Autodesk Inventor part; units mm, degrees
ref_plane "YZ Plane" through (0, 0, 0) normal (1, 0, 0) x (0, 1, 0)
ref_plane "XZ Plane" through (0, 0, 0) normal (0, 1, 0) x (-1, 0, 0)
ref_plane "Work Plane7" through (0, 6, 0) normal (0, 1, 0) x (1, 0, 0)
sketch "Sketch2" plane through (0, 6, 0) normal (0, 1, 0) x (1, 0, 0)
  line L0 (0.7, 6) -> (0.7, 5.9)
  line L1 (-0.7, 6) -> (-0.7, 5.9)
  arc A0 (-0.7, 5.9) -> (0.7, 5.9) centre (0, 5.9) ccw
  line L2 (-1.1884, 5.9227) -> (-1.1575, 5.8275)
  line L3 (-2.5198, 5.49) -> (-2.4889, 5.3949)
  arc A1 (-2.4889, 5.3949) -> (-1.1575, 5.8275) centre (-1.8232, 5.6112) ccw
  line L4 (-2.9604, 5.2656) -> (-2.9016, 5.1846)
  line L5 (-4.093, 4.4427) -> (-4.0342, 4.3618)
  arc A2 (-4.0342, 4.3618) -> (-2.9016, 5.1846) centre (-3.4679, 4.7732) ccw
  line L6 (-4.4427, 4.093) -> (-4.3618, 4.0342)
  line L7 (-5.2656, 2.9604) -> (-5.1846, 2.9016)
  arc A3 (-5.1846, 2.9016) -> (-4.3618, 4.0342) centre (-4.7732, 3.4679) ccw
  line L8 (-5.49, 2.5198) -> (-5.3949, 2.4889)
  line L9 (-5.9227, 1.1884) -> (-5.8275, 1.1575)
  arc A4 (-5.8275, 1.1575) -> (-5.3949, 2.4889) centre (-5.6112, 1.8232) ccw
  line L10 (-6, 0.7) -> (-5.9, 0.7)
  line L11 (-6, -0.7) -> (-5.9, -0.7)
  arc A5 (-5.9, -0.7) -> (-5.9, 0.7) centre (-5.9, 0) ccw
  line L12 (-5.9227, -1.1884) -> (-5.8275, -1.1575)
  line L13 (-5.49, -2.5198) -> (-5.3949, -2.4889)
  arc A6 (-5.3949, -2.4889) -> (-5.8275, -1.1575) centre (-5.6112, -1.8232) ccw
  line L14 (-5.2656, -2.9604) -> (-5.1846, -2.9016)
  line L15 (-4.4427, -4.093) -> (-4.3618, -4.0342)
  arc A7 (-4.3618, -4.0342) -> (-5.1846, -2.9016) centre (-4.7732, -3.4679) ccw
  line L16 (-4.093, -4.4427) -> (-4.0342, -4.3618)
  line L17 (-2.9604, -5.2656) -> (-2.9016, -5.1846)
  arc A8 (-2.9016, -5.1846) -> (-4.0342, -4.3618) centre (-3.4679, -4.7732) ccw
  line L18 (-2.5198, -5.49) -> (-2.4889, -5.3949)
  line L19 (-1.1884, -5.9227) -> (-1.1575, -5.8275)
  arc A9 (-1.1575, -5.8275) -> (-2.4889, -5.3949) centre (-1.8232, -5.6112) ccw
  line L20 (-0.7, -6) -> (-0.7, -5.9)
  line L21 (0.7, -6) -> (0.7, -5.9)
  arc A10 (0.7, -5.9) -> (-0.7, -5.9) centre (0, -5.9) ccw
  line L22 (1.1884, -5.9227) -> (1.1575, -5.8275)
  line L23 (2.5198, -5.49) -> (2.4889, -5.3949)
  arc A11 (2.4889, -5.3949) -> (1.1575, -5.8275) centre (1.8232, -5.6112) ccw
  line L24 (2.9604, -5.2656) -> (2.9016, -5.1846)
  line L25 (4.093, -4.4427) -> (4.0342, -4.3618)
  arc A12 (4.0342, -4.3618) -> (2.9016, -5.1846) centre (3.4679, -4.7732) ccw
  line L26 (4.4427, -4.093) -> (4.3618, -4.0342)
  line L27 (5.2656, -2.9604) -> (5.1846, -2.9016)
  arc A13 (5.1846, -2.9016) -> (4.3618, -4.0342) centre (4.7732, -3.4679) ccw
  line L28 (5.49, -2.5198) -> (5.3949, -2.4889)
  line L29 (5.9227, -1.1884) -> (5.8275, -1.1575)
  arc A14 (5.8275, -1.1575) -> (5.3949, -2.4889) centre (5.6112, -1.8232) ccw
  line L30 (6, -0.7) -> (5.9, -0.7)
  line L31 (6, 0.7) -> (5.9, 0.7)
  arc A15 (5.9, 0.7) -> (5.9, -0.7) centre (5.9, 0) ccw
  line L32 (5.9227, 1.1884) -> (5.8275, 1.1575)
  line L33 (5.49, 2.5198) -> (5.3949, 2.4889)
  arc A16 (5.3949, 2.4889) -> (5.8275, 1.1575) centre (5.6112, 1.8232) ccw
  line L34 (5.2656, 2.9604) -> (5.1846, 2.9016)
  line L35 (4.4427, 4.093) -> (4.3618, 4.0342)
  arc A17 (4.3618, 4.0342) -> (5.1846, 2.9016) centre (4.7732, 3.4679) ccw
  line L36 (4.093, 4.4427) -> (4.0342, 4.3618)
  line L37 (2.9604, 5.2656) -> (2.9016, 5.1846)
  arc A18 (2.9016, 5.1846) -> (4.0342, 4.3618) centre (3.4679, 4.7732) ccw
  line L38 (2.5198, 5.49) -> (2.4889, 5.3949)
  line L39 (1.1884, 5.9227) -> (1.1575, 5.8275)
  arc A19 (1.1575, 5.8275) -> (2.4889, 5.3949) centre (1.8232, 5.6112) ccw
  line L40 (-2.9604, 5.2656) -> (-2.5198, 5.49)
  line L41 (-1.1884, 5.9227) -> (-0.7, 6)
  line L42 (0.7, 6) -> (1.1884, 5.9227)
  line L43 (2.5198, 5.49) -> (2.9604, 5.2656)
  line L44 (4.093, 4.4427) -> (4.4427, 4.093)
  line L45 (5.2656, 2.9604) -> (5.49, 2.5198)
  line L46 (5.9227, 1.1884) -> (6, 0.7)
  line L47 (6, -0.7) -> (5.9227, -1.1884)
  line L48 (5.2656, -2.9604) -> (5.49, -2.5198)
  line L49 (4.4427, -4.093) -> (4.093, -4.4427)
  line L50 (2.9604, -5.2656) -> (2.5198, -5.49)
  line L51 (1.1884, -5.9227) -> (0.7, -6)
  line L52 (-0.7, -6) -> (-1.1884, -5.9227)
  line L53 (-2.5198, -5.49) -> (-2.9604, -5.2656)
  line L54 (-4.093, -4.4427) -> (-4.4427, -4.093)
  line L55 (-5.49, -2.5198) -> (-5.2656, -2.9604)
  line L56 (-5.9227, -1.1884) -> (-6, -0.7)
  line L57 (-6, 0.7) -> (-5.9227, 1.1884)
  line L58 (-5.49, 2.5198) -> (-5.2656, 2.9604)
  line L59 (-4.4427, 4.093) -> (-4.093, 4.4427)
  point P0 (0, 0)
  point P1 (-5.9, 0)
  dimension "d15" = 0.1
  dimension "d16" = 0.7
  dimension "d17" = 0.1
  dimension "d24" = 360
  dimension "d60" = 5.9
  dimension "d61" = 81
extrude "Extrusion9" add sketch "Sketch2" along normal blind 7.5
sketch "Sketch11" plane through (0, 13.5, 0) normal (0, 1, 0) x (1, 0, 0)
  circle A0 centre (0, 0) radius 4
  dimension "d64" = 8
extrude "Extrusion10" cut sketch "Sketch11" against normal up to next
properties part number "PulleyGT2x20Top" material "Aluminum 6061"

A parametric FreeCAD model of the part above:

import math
import FreeCAD as App
import Part
import Sketcher

V = App.Vector
Q = App.Units.Quantity

doc = App.newDocument("Part")
body = doc.addObject("PartDesign::Body", "Body")

sketch1 = body.newObject("Sketcher::SketchObject", "Sketch")
sketch1.AttachmentSupport = (doc.getObject("XZ_Plane"), [""])
sketch1.MapMode = "FlatFace"
sketch1.AttachmentOffset = App.Placement(V(0, 0, -6), App.Rotation())
sketch1.addGeometry([
    Part.LineSegment(V(1.1884, -5.9227, 0), V(0.7, -6, 0)),
    Part.LineSegment(V(0.7, -6, 0), V(0.7, -5.9, 0)),
    Part.ArcOfCircle(Part.Circle(V(0, -5.9, 0), V(0, 0, 1), 0.7), math.radians(0), math.radians(180)),
    Part.LineSegment(V(-0.7, -5.9, 0), V(-0.7, -6, 0)),
    Part.LineSegment(V(-0.7, -6, 0), V(-1.1884, -5.9227, 0)),
    Part.LineSegment(V(-1.1884, -5.9227, 0), V(-1.1575, -5.8275, 0)),
    Part.ArcOfCircle(Part.Circle(V(-1.8232, -5.6112, 0), V(0, 0, 1), 0.699959), math.radians(-18.000075), math.radians(161.999925)),
    Part.LineSegment(V(-2.4889, -5.3949, 0), V(-2.5198, -5.49, 0)),
    Part.LineSegment(V(-2.5198, -5.49, 0), V(-2.9604, -5.2656, 0)),
    Part.LineSegment(V(-2.9604, -5.2656, 0), V(-2.9016, -5.1846, 0)),
    Part.ArcOfCircle(Part.Circle(V(-3.4679, -4.7732, 0), V(0, 0, 1), 0.699961), math.radians(-35.997283), math.radians(144.002717)),
    Part.LineSegment(V(-4.0342, -4.3618, 0), V(-4.093, -4.4427, 0)),
    Part.LineSegment(V(-4.093, -4.4427, 0), V(-4.4427, -4.093, 0)),
    Part.LineSegment(V(-4.4427, -4.093, 0), V(-4.3618, -4.0342, 0)),
    Part.ArcOfCircle(Part.Circle(V(-4.7732, -3.4679, 0), V(0, 0, 1), 0.699961), math.radians(-54.002717), math.radians(125.997283)),
    Part.LineSegment(V(-5.1846, -2.9016, 0), V(-5.2656, -2.9604, 0)),
    Part.LineSegment(V(-5.2656, -2.9604, 0), V(-5.49, -2.5198, 0)),
    Part.LineSegment(V(-5.49, -2.5198, 0), V(-5.3949, -2.4889, 0)),
    Part.ArcOfCircle(Part.Circle(V(-5.6112, -1.8232, 0), V(0, 0, 1), 0.699959), math.radians(-71.999925), math.radians(108.000075)),
    Part.LineSegment(V(-5.8275, -1.1575, 0), V(-5.9227, -1.1884, 0)),
    Part.LineSegment(V(-5.9227, -1.1884, 0), V(-6, -0.7, 0)),
    Part.LineSegment(V(-6, -0.7, 0), V(-5.9, -0.7, 0)),
    Part.ArcOfCircle(Part.Circle(V(-5.9, 0, 0), V(0, 0, 1), 0.7), math.radians(-90), math.radians(90)),
    Part.LineSegment(V(-5.9, 0.7, 0), V(-6, 0.7, 0)),
    Part.LineSegment(V(-6, 0.7, 0), V(-5.9227, 1.1884, 0)),
    Part.LineSegment(V(-5.9227, 1.1884, 0), V(-5.8275, 1.1575, 0)),
    Part.ArcOfCircle(Part.Circle(V(-5.6112, 1.8232, 0), V(0, 0, 1), 0.699959), math.radians(-108.000075), math.radians(71.999925)),
    Part.LineSegment(V(-5.3949, 2.4889, 0), V(-5.49, 2.5198, 0)),
    Part.LineSegment(V(-5.49, 2.5198, 0), V(-5.2656, 2.9604, 0)),
    Part.LineSegment(V(-5.2656, 2.9604, 0), V(-5.1846, 2.9016, 0)),
    Part.ArcOfCircle(Part.Circle(V(-4.7732, 3.4679, 0), V(0, 0, 1), 0.699961), math.radians(-125.997283), math.radians(54.002717)),
    Part.LineSegment(V(-4.3618, 4.0342, 0), V(-4.4427, 4.093, 0)),
    Part.LineSegment(V(-4.4427, 4.093, 0), V(-4.093, 4.4427, 0)),
    Part.LineSegment(V(-4.093, 4.4427, 0), V(-4.0342, 4.3618, 0)),
    Part.ArcOfCircle(Part.Circle(V(-3.4679, 4.7732, 0), V(0, 0, 1), 0.699961), math.radians(-144.002717), math.radians(35.997283)),
    Part.LineSegment(V(-2.9016, 5.1846, 0), V(-2.9604, 5.2656, 0)),
    Part.LineSegment(V(-2.9604, 5.2656, 0), V(-2.5198, 5.49, 0)),
    Part.LineSegment(V(-2.5198, 5.49, 0), V(-2.4889, 5.3949, 0)),
    Part.ArcOfCircle(Part.Circle(V(-1.8232, 5.6112, 0), V(0, 0, 1), 0.699959), math.radians(-161.999925), math.radians(18.000075)),
    Part.LineSegment(V(-1.1575, 5.8275, 0), V(-1.1884, 5.9227, 0)),
    Part.LineSegment(V(-1.1884, 5.9227, 0), V(-0.7, 6, 0)),
    Part.LineSegment(V(-0.7, 6, 0), V(-0.7, 5.9, 0)),
    Part.ArcOfCircle(Part.Circle(V(0, 5.9, 0), V(0, 0, 1), 0.7), math.radians(180), math.radians(360)),
    Part.LineSegment(V(0.7, 5.9, 0), V(0.7, 6, 0)),
    Part.LineSegment(V(0.7, 6, 0), V(1.1884, 5.9227, 0)),
    Part.LineSegment(V(1.1884, 5.9227, 0), V(1.1575, 5.8275, 0)),
    Part.ArcOfCircle(Part.Circle(V(1.8232, 5.6112, 0), V(0, 0, 1), 0.699959), math.radians(161.999925), math.radians(341.999925)),
    Part.LineSegment(V(2.4889, 5.3949, 0), V(2.5198, 5.49, 0)),
    Part.LineSegment(V(2.5198, 5.49, 0), V(2.9604, 5.2656, 0)),
    Part.LineSegment(V(2.9604, 5.2656, 0), V(2.9016, 5.1846, 0)),
    Part.ArcOfCircle(Part.Circle(V(3.4679, 4.7732, 0), V(0, 0, 1), 0.699961), math.radians(144.002717), math.radians(324.002717)),
    Part.LineSegment(V(4.0342, 4.3618, 0), V(4.093, 4.4427, 0)),
    Part.LineSegment(V(4.093, 4.4427, 0), V(4.4427, 4.093, 0)),
    Part.LineSegment(V(4.4427, 4.093, 0), V(4.3618, 4.0342, 0)),
    Part.ArcOfCircle(Part.Circle(V(4.7732, 3.4679, 0), V(0, 0, 1), 0.699961), math.radians(125.997283), math.radians(305.997283)),
    Part.LineSegment(V(5.1846, 2.9016, 0), V(5.2656, 2.9604, 0)),
    Part.LineSegment(V(5.2656, 2.9604, 0), V(5.49, 2.5198, 0)),
    Part.LineSegment(V(5.49, 2.5198, 0), V(5.3949, 2.4889, 0)),
    Part.ArcOfCircle(Part.Circle(V(5.6112, 1.8232, 0), V(0, 0, 1), 0.699959), math.radians(108.000075), math.radians(288.000075)),
    Part.LineSegment(V(5.8275, 1.1575, 0), V(5.9227, 1.1884, 0)),
    Part.LineSegment(V(5.9227, 1.1884, 0), V(6, 0.7, 0)),
    Part.LineSegment(V(6, 0.7, 0), V(5.9, 0.7, 0)),
    Part.ArcOfCircle(Part.Circle(V(5.9, 0, 0), V(0, 0, 1), 0.7), math.radians(90), math.radians(270)),
    Part.LineSegment(V(5.9, -0.7, 0), V(6, -0.7, 0)),
    Part.LineSegment(V(6, -0.7, 0), V(5.9227, -1.1884, 0)),
    Part.LineSegment(V(5.9227, -1.1884, 0), V(5.8275, -1.1575, 0)),
    Part.ArcOfCircle(Part.Circle(V(5.6112, -1.8232, 0), V(0, 0, 1), 0.699959), math.radians(71.999925), math.radians(251.999925)),
    Part.LineSegment(V(5.3949, -2.4889, 0), V(5.49, -2.5198, 0)),
    Part.LineSegment(V(5.49, -2.5198, 0), V(5.2656, -2.9604, 0)),
    Part.LineSegment(V(5.2656, -2.9604, 0), V(5.1846, -2.9016, 0)),
    Part.ArcOfCircle(Part.Circle(V(4.7732, -3.4679, 0), V(0, 0, 1), 0.699961), math.radians(54.002717), math.radians(234.002717)),
    Part.LineSegment(V(4.3618, -4.0342, 0), V(4.4427, -4.093, 0)),
    Part.LineSegment(V(4.4427, -4.093, 0), V(4.093, -4.4427, 0)),
    Part.LineSegment(V(4.093, -4.4427, 0), V(4.0342, -4.3618, 0)),
    Part.ArcOfCircle(Part.Circle(V(3.4679, -4.7732, 0), V(0, 0, 1), 0.699961), math.radians(35.997283), math.radians(215.997283)),
    Part.LineSegment(V(2.9016, -5.1846, 0), V(2.9604, -5.2656, 0)),
    Part.LineSegment(V(2.9604, -5.2656, 0), V(2.5198, -5.49, 0)),
    Part.LineSegment(V(2.5198, -5.49, 0), V(2.4889, -5.3949, 0)),
    Part.ArcOfCircle(Part.Circle(V(1.8232, -5.6112, 0), V(0, 0, 1), 0.699959), math.radians(18.000075), math.radians(198.000075)),
    Part.LineSegment(V(1.1575, -5.8275, 0), V(1.1884, -5.9227, 0)),
], False)
sketch1.addConstraint([
    Sketcher.Constraint("Coincident", 0, 2, 1, 1),
    Sketcher.Constraint("Tangent", 1, 2, 2, 1),
    Sketcher.Constraint("Tangent", 2, 2, 3, 1),
    Sketcher.Constraint("Coincident", 3, 2, 4, 1),
    Sketcher.Constraint("Coincident", 4, 2, 5, 1),
    Sketcher.Constraint("Tangent", 5, 2, 6, 1),
    Sketcher.Constraint("Tangent", 6, 2, 7, 1),
    Sketcher.Constraint("Coincident", 7, 2, 8, 1),
    Sketcher.Constraint("Coincident", 8, 2, 9, 1),
    Sketcher.Constraint("Tangent", 9, 2, 10, 1),
    Sketcher.Constraint("Tangent", 10, 2, 11, 1),
    Sketcher.Constraint("Coincident", 11, 2, 12, 1),
    Sketcher.Constraint("Coincident", 12, 2, 13, 1),
    Sketcher.Constraint("Tangent", 13, 2, 14, 1),
    Sketcher.Constraint("Tangent", 14, 2, 15, 1),
    Sketcher.Constraint("Coincident", 15, 2, 16, 1),
    Sketcher.Constraint("Coincident", 16, 2, 17, 1),
    Sketcher.Constraint("Tangent", 17, 2, 18, 1),
    Sketcher.Constraint("Tangent", 18, 2, 19, 1),
    Sketcher.Constraint("Coincident", 19, 2, 20, 1),
    Sketcher.Constraint("Coincident", 20, 2, 21, 1),
    Sketcher.Constraint("Tangent", 21, 2, 22, 1),
    Sketcher.Constraint("Tangent", 22, 2, 23, 1),
    Sketcher.Constraint("Coincident", 23, 2, 24, 1),
    Sketcher.Constraint("Coincident", 24, 2, 25, 1),
    Sketcher.Constraint("Tangent", 25, 2, 26, 1),
    Sketcher.Constraint("Tangent", 26, 2, 27, 1),
    Sketcher.Constraint("Coincident", 27, 2, 28, 1),
    Sketcher.Constraint("Coincident", 28, 2, 29, 1),
    Sketcher.Constraint("Tangent", 29, 2, 30, 1),
    Sketcher.Constraint("Tangent", 30, 2, 31, 1),
    Sketcher.Constraint("Coincident", 31, 2, 32, 1),
    Sketcher.Constraint("Coincident", 32, 2, 33, 1),
    Sketcher.Constraint("Tangent", 33, 2, 34, 1),
    Sketcher.Constraint("Tangent", 34, 2, 35, 1),
    Sketcher.Constraint("Coincident", 35, 2, 36, 1),
    Sketcher.Constraint("Coincident", 36, 2, 37, 1),
    Sketcher.Constraint("Tangent", 37, 2, 38, 1),
    Sketcher.Constraint("Tangent", 38, 2, 39, 1),
    Sketcher.Constraint("Coincident", 39, 2, 40, 1),
    Sketcher.Constraint("Coincident", 40, 2, 41, 1),
    Sketcher.Constraint("Tangent", 41, 2, 42, 1),
    Sketcher.Constraint("Tangent", 42, 2, 43, 1),
    Sketcher.Constraint("Coincident", 43, 2, 44, 1),
    Sketcher.Constraint("Coincident", 44, 2, 45, 1),
    Sketcher.Constraint("Tangent", 45, 2, 46, 1),
    Sketcher.Constraint("Tangent", 46, 2, 47, 1),
    Sketcher.Constraint("Coincident", 47, 2, 48, 1),
    Sketcher.Constraint("Coincident", 48, 2, 49, 1),
    Sketcher.Constraint("Tangent", 49, 2, 50, 1),
    Sketcher.Constraint("Tangent", 50, 2, 51, 1),
    Sketcher.Constraint("Coincident", 51, 2, 52, 1),
    Sketcher.Constraint("Coincident", 52, 2, 53, 1),
    Sketcher.Constraint("Tangent", 53, 2, 54, 1),
    Sketcher.Constraint("Tangent", 54, 2, 55, 1),
    Sketcher.Constraint("Coincident", 55, 2, 56, 1),
    Sketcher.Constraint("Coincident", 56, 2, 57, 1),
    Sketcher.Constraint("Tangent", 57, 2, 58, 1),
    Sketcher.Constraint("Tangent", 58, 2, 59, 1),
    Sketcher.Constraint("Coincident", 59, 2, 60, 1),
    Sketcher.Constraint("Coincident", 60, 2, 61, 1),
    Sketcher.Constraint("Tangent", 61, 2, 62, 1),
    Sketcher.Constraint("Tangent", 62, 2, 63, 1),
    Sketcher.Constraint("Coincident", 63, 2, 64, 1),
    Sketcher.Constraint("Coincident", 64, 2, 65, 1),
    Sketcher.Constraint("Tangent", 65, 2, 66, 1),
    Sketcher.Constraint("Tangent", 66, 2, 67, 1),
    Sketcher.Constraint("Coincident", 67, 2, 68, 1),
    Sketcher.Constraint("Coincident", 68, 2, 69, 1),
    Sketcher.Constraint("Tangent", 69, 2, 70, 1),
    Sketcher.Constraint("Tangent", 70, 2, 71, 1),
    Sketcher.Constraint("Coincident", 71, 2, 72, 1),
    Sketcher.Constraint("Coincident", 72, 2, 73, 1),
    Sketcher.Constraint("Tangent", 73, 2, 74, 1),
    Sketcher.Constraint("Tangent", 74, 2, 75, 1),
    Sketcher.Constraint("Coincident", 75, 2, 76, 1),
    Sketcher.Constraint("Coincident", 76, 2, 77, 1),
    Sketcher.Constraint("Tangent", 77, 2, 78, 1),
    Sketcher.Constraint("Tangent", 78, 2, 79, 1),
    Sketcher.Constraint("Coincident", 79, 2, 0, 1),
    Sketcher.Constraint("Vertical", 1),
    Sketcher.Constraint("Vertical", 3),
    Sketcher.Constraint("Horizontal", 21),
    Sketcher.Constraint("Horizontal", 23),
    Sketcher.Constraint("Vertical", 41),
    Sketcher.Constraint("Vertical", 43),
    Sketcher.Constraint("Horizontal", 61),
    Sketcher.Constraint("Horizontal", 63),
    Sketcher.Constraint("Equal", 2, 6),
    Sketcher.Constraint("Equal", 6, 10),
    Sketcher.Constraint("Equal", 10, 14),
    Sketcher.Constraint("Equal", 14, 18),
    Sketcher.Constraint("Equal", 18, 22),
    Sketcher.Constraint("Equal", 22, 26),
    Sketcher.Constraint("Equal", 26, 30),
    Sketcher.Constraint("Equal", 30, 34),
    Sketcher.Constraint("Equal", 34, 38),
    Sketcher.Constraint("Equal", 38, 42),
    Sketcher.Constraint("Equal", 42, 46),
    Sketcher.Constraint("Equal", 46, 50),
    Sketcher.Constraint("Equal", 50, 54),
    Sketcher.Constraint("Equal", 54, 58),
    Sketcher.Constraint("Equal", 58, 62),
    Sketcher.Constraint("Equal", 62, 66),
    Sketcher.Constraint("Equal", 66, 70),
    Sketcher.Constraint("Equal", 70, 74),
    Sketcher.Constraint("Equal", 74, 78),
    Sketcher.Constraint("Symmetric", 2, 3, 42, 3, -1, 1),
    Sketcher.Constraint("Symmetric", 6, 3, 46, 3, -1, 1),
    Sketcher.Constraint("Symmetric", 10, 3, 50, 3, -1, 1),
    Sketcher.Constraint("Symmetric", 14, 3, 54, 3, -1, 1),
    Sketcher.Constraint("Symmetric", 18, 3, 58, 3, -1, 1),
    Sketcher.Constraint("Symmetric", 22, 3, 62, 3, -1, 1),
    Sketcher.Constraint("Symmetric", 26, 3, 66, 3, -1, 1),
    Sketcher.Constraint("Symmetric", 30, 3, 70, 3, -1, 1),
    Sketcher.Constraint("Symmetric", 34, 3, 74, 3, -1, 1),
    Sketcher.Constraint("Symmetric", 38, 3, 78, 3, -1, 1),
    Sketcher.Constraint("Symmetric", 4, 2, 44, 2, -1, 1),
    Sketcher.Constraint("Symmetric", 7, 2, 47, 2, -1, 1),
    Sketcher.Constraint("Symmetric", 8, 2, 48, 2, -1, 1),
    Sketcher.Constraint("Symmetric", 11, 2, 51, 2, -1, 1),
    Sketcher.Constraint("Symmetric", 12, 2, 52, 2, -1, 1),
    Sketcher.Constraint("Symmetric", 15, 2, 55, 2, -1, 1),
    Sketcher.Constraint("Symmetric", 16, 2, 56, 2, -1, 1),
    Sketcher.Constraint("Symmetric", 19, 2, 59, 2, -1, 1),
    Sketcher.Constraint("Symmetric", 24, 2, 64, 2, -1, 1),
    Sketcher.Constraint("Symmetric", 27, 2, 67, 2, -1, 1),
    Sketcher.Constraint("Symmetric", 28, 2, 68, 2, -1, 1),
    Sketcher.Constraint("Symmetric", 31, 2, 71, 2, -1, 1),
    Sketcher.Constraint("Symmetric", 32, 2, 72, 2, -1, 1),
    Sketcher.Constraint("Symmetric", 35, 2, 75, 2, -1, 1),
    Sketcher.Constraint("Symmetric", 36, 2, 76, 2, -1, 1),
    Sketcher.Constraint("Symmetric", 39, 2, 79, 2, -1, 1),
    Sketcher.Constraint("Symmetric", 38, 3, 46, 3, -2),
    Sketcher.Constraint("Symmetric", 34, 3, 50, 3, -2),
    Sketcher.Constraint("Symmetric", 30, 3, 54, 3, -2),
    Sketcher.Constraint("Symmetric", 26, 3, 58, 3, -2),
    Sketcher.Constraint("Symmetric", 0, 2, 3, 2, -2),
    Sketcher.Constraint("Symmetric", 39, 2, 44, 2, -2),
    Sketcher.Constraint("Symmetric", 36, 2, 47, 2, -2),
    Sketcher.Constraint("Symmetric", 35, 2, 48, 2, -2),
    Sketcher.Constraint("Symmetric", 32, 2, 51, 2, -2),
    Sketcher.Constraint("Symmetric", 31, 2, 52, 2, -2),
    Sketcher.Constraint("Symmetric", 28, 2, 55, 2, -2),
    Sketcher.Constraint("Symmetric", 27, 2, 56, 2, -2),
    Sketcher.Constraint("Symmetric", 24, 2, 59, 2, -2),
    Sketcher.Constraint("Symmetric", 23, 2, 60, 2, -2),
    Sketcher.Constraint("Parallel", 5, 7),
    Sketcher.Constraint("Parallel", 17, 19),
    Sketcher.Constraint("Perpendicular", 0, 20),
    Sketcher.Constraint("Perpendicular", 4, 24),
    Sketcher.Constraint("Perpendicular", 7, 25),
    Sketcher.Constraint("Perpendicular", 8, 28),
    Sketcher.Constraint("Perpendicular", 9, 29),
    Sketcher.Constraint("Perpendicular", 11, 31),
    Sketcher.Constraint("Perpendicular", 12, 32),
    Sketcher.Constraint("Perpendicular", 20, 40),
    Sketcher.Constraint("Perpendicular", 24, 44),
    Sketcher.Constraint("Perpendicular", 44, 64),
    Sketcher.Constraint("Equal", 63, 1),
    Sketcher.Constraint("Equal", 5, 7),
    Sketcher.Constraint("Equal", 4, 8),
    Sketcher.Constraint("Equal", 7, 9),
    Sketcher.Constraint("Equal", 9, 11),
    Sketcher.Constraint("Equal", 8, 12),
    Sketcher.Constraint("Equal", 11, 13),
    Sketcher.Constraint("Equal", 13, 15),
    Sketcher.Constraint("Equal", 12, 16),
    Sketcher.Constraint("Equal", 15, 17),
    Sketcher.Constraint("Equal", 17, 19),
    Sketcher.Constraint("Equal", 16, 20),
    Sketcher.Constraint("Radius", 2, Q("0.7 mm")),
    Sketcher.Constraint("DistanceX", 21, 1, 21, 2, Q("0.1 mm")),
    Sketcher.Constraint("Distance", 5, Q("0.1 mm")),
    Sketcher.Constraint("DistanceY", 2, 3, -1, 1, Q("5.9 mm")),
    Sketcher.Constraint("Angle", 7, Q("-108 deg")),
    Sketcher.Constraint("Angle", 8, Q("153.01 deg")),
    Sketcher.Constraint("Angle", 11, Q("-126.0105 deg")),
    Sketcher.Constraint("DistanceY", 7, 2, -1, 1, Q("5.49 mm")),
    Sketcher.Constraint("DistanceX", 10, 3, -1, 1, Q("3.468 mm")),
])
pad1 = body.newObject("PartDesign::Pad", "Pad")
pad1.Profile = sketch1
pad1.Length = 7.5
pad1.Reversed = True

sketch2 = body.newObject("Sketcher::SketchObject", "Sketch001")
sketch2.AttachmentSupport = (doc.getObject("XZ_Plane"), [""])
sketch2.MapMode = "FlatFace"
sketch2.AttachmentOffset = App.Placement(V(0, 0, -13.5), App.Rotation())
sketch2.addGeometry(Part.Circle(V(0, 0, 0), V(0, 0, 1), 4), False)
sketch2.addConstraint([
    Sketcher.Constraint("Coincident", 0, 3, -1, 1),
    Sketcher.Constraint("Diameter", 0, Q("8 mm")),
])
pocket1 = body.newObject("PartDesign::Pocket", "Pocket")
pocket1.Profile = sketch2
pocket1.Type = "UpToFirst"
pocket1.Reversed = True

doc.recompute()
